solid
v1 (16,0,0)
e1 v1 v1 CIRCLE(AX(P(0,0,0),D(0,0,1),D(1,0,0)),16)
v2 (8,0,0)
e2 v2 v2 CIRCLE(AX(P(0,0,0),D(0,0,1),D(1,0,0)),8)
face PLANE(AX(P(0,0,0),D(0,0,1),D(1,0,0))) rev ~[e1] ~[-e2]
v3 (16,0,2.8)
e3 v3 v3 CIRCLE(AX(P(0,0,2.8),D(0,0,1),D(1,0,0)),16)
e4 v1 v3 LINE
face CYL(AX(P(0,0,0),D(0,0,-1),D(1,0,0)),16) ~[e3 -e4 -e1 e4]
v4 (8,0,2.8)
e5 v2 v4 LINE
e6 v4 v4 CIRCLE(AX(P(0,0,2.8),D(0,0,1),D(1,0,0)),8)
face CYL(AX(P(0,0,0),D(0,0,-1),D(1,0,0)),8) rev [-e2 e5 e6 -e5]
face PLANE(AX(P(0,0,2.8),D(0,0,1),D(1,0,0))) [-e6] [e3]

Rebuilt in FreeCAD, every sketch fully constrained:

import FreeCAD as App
import Part
import Sketcher
Q = App.Units.Quantity

doc = App.newDocument("Part")
body = doc.addObject("PartDesign::Body", "Body")

# Sketch on XY plane
sketch1 = body.newObject("Sketcher::SketchObject", "Sketch")
sketch1.AttachmentSupport = (doc.getObject("XY_Plane"), [""])
sketch1.MapMode = "FlatFace"
sketch1.addGeometry([
    Part.Circle(App.Vector(0, 0, 0), App.Vector(0, 0, 1), 16),
    Part.Circle(App.Vector(0, 0, 0), App.Vector(0, 0, 1), 8),
], False)
sketch1.addConstraint([
    Sketcher.Constraint("Coincident", 0, 3, -1, 1),
    Sketcher.Constraint("Coincident", 1, 3, -1, 1),
    Sketcher.Constraint("Diameter", 0, Q("32 mm")),
    Sketcher.Constraint("Diameter", 1, Q("16 mm")),
])
pad1 = body.newObject("PartDesign::Pad", "Pad")
pad1.Profile = sketch1
pad1.Length = 2.8

doc.recompute()
